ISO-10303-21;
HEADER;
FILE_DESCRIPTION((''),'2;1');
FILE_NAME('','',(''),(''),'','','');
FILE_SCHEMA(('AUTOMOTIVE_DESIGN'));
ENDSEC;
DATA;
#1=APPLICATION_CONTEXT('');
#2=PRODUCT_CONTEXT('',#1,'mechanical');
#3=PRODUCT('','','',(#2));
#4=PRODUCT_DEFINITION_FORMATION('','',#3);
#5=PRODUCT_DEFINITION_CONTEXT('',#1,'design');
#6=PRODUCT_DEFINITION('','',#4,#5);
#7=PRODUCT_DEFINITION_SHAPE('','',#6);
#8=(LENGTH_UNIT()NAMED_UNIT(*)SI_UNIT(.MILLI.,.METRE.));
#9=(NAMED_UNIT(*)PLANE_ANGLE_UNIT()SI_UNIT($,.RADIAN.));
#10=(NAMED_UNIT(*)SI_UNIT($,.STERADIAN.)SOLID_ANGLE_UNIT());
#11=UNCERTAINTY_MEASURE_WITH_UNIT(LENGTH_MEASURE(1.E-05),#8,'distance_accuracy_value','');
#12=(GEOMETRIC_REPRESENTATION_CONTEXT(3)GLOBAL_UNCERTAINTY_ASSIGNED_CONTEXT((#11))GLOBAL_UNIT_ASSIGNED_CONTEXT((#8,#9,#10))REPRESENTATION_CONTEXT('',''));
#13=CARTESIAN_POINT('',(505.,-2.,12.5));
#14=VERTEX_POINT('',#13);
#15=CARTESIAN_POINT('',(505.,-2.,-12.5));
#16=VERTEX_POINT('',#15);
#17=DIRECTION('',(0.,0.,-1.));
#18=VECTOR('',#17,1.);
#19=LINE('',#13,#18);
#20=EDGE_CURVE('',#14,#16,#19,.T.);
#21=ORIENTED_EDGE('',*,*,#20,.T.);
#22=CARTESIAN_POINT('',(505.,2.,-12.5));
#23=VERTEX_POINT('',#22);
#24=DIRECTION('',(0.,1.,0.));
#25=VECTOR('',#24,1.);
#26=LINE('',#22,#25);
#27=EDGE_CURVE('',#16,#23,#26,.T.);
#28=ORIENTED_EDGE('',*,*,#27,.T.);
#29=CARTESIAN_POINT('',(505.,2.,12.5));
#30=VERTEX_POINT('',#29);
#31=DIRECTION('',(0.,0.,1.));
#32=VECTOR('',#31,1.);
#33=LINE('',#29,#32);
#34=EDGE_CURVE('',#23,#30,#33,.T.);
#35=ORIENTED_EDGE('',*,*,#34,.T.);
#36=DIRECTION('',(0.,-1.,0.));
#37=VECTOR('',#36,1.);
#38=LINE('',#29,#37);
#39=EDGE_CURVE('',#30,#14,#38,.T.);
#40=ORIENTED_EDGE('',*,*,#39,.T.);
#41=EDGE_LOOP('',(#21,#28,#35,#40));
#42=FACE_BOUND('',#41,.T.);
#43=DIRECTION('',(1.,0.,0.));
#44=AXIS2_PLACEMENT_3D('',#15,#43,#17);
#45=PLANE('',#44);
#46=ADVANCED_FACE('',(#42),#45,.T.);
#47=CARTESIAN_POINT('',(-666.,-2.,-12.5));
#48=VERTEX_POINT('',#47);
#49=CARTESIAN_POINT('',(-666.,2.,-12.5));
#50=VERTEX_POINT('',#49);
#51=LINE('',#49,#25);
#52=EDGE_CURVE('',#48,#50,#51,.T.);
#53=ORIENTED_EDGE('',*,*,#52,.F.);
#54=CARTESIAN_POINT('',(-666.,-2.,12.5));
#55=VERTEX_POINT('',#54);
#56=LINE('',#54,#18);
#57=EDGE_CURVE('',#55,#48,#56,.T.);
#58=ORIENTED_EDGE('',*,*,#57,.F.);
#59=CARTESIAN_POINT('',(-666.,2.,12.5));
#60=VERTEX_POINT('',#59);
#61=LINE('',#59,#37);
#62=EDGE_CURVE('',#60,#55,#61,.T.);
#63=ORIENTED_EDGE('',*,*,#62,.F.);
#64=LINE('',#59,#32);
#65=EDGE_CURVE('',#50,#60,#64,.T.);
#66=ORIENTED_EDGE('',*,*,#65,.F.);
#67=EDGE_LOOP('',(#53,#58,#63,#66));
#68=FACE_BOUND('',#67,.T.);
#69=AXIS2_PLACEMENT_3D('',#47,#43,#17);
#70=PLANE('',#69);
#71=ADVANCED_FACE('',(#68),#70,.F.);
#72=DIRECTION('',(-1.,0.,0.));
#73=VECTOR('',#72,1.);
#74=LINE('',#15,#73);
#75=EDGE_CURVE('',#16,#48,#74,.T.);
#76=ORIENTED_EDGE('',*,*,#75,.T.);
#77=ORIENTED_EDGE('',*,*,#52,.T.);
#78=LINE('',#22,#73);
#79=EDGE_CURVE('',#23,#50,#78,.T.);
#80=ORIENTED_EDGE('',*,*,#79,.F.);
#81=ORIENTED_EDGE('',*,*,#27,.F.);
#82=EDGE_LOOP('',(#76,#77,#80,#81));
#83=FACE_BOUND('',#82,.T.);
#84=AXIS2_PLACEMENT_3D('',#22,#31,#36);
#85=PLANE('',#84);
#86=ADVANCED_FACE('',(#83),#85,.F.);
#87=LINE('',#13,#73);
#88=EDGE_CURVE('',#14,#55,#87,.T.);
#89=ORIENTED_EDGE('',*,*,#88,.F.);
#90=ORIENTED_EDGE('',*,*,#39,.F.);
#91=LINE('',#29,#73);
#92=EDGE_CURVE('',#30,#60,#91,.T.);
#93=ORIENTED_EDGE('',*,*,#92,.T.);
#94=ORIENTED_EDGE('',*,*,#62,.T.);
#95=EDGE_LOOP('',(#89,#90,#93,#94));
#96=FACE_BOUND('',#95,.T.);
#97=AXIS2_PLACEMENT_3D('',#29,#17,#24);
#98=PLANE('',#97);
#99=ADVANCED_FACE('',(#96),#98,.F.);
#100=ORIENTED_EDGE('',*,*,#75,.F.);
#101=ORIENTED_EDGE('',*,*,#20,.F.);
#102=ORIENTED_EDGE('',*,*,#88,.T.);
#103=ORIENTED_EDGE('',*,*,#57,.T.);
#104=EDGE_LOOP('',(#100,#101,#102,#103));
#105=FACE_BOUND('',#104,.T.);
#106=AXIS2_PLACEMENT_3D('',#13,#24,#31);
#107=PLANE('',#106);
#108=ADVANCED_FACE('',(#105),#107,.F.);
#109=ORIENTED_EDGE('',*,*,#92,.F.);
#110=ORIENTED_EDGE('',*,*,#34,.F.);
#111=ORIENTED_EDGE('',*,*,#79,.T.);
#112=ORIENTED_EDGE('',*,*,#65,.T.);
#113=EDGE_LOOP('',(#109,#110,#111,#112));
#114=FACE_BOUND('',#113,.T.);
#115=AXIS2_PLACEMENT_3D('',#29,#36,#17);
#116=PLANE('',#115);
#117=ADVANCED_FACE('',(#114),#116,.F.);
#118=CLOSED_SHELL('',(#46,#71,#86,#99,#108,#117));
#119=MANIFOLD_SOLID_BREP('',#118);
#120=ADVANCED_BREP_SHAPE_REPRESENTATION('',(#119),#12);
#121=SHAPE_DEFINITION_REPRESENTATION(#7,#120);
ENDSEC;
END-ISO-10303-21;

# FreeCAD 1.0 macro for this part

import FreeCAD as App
import Part
import Sketcher
from FreeCAD import Vector

doc = App.newDocument("Part")
body = doc.addObject("PartDesign::Body", "Body")

sketch1 = body.newObject("Sketcher::SketchObject", "Sketch")
sketch1.AttachmentSupport = (doc.getObject("YZ_Plane"), [""])
sketch1.MapMode = "FlatFace"
sketch1.addGeometry(Part.LineSegment(Vector(2, 12.5, 0), Vector(-2, 12.5, 0)), False)
sketch1.addGeometry(Part.LineSegment(Vector(-2, 12.5, 0), Vector(-2, -12.5, 0)), False)
sketch1.addGeometry(Part.LineSegment(Vector(-2, -12.5, 0), Vector(2, -12.5, 0)), False)
sketch1.addGeometry(Part.LineSegment(Vector(2, -12.5, 0), Vector(2, 12.5, 0)), False)
sketch1.addConstraint(Sketcher.Constraint("Coincident", 0, 2, 1, 1))
sketch1.addConstraint(Sketcher.Constraint("Coincident", 1, 2, 2, 1))
sketch1.addConstraint(Sketcher.Constraint("Coincident", 2, 2, 3, 1))
sketch1.addConstraint(Sketcher.Constraint("Coincident", 3, 2, 0, 1))
sketch1.addConstraint(Sketcher.Constraint("Horizontal", 0))
sketch1.addConstraint(Sketcher.Constraint("Vertical", 1))
sketch1.addConstraint(Sketcher.Constraint("Horizontal", 2))
sketch1.addConstraint(Sketcher.Constraint("Vertical", 3))
sketch1.addConstraint(Sketcher.Constraint("Symmetric", 0, 2, 2, 2, -1, 1))
sketch1.addConstraint(Sketcher.Constraint("DistanceX", 0, 2, 0, 1, 4.0))
sketch1.addConstraint(Sketcher.Constraint("DistanceY", 1, 2, 1, 1, 25.0))
pad1 = body.newObject("PartDesign::Pad", "Pad")
pad1.Profile = sketch1
pad1.Type = "TwoLengths"
pad1.Length = 505
pad1.Length2 = 666

doc.recompute()
